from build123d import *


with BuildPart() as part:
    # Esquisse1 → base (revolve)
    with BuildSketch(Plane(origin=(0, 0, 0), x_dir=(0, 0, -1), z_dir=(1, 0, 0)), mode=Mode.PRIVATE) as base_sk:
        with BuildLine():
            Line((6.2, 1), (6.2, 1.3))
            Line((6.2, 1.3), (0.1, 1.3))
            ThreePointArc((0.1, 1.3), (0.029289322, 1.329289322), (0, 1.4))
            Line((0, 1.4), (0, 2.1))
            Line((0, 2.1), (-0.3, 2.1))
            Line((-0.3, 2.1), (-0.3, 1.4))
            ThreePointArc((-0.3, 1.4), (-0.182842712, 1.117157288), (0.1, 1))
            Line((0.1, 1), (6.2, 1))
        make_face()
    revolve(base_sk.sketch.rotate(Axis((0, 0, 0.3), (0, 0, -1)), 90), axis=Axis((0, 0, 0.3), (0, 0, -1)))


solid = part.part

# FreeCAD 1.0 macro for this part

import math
import FreeCAD as App
import Part
import Sketcher

doc = App.newDocument("Part")
body = doc.addObject("PartDesign::Body", "Body")

sketch1 = doc.addObject("Sketcher::SketchObject", "Sketch")
body.addObject(sketch1)
sketch1.AttachmentSupport = (doc.YZ_Plane, [""])
sketch1.MapMode = "FlatFace"
sketch1.addGeometry(Part.LineSegment(App.Vector(1, -6.2, 0), App.Vector(1.3, -6.2, 0)), False)
sketch1.addGeometry(Part.LineSegment(App.Vector(1.3, -6.2, 0), App.Vector(1.3, -0.1, 0)), False)
sketch1.addGeometry(Part.ArcOfCircle(Part.Circle(App.Vector(1.4, -0.1, 0), App.Vector(0, 0, 1), 0.1), math.radians(90), math.radians(180)), False)
sketch1.addGeometry(Part.LineSegment(App.Vector(1.4, 0, 0), App.Vector(2.1, 0, 0)), False)
sketch1.addGeometry(Part.LineSegment(App.Vector(2.1, 0, 0), App.Vector(2.1, 0.3, 0)), False)
sketch1.addGeometry(Part.LineSegment(App.Vector(2.1, 0.3, 0), App.Vector(1.4, 0.3, 0)), False)
sketch1.addGeometry(Part.ArcOfCircle(Part.Circle(App.Vector(1.4, -0.1, 0), App.Vector(0, 0, 1), 0.4), math.radians(90), math.radians(180)), False)
sketch1.addGeometry(Part.LineSegment(App.Vector(1, -0.1, 0), App.Vector(1, -6.2, 0)), False)
sketch1.addConstraint(Sketcher.Constraint("Coincident", 0, 2, 1, 1))
sketch1.addConstraint(Sketcher.Constraint("Tangent", 1, 2, 2, 2))
sketch1.addConstraint(Sketcher.Constraint("Tangent", 2, 1, 3, 1))
sketch1.addConstraint(Sketcher.Constraint("Coincident", 3, 2, 4, 1))
sketch1.addConstraint(Sketcher.Constraint("Coincident", 4, 2, 5, 1))
sketch1.addConstraint(Sketcher.Constraint("Tangent", 5, 2, 6, 1))
sketch1.addConstraint(Sketcher.Constraint("Tangent", 6, 2, 7, 1))
sketch1.addConstraint(Sketcher.Constraint("Coincident", 7, 2, 0, 1))
sketch1.addConstraint(Sketcher.Constraint("Horizontal", 0))
sketch1.addConstraint(Sketcher.Constraint("Vertical", 1))
sketch1.addConstraint(Sketcher.Constraint("Horizontal", 3))
sketch1.addConstraint(Sketcher.Constraint("Vertical", 4))
sketch1.addConstraint(Sketcher.Constraint("Horizontal", 5))
sketch1.addConstraint(Sketcher.Constraint("Vertical", 7))
sketch1.addConstraint(Sketcher.Constraint("Coincident", 6, 3, 2, 3))
sketch1.addConstraint(Sketcher.Constraint("PointOnObject", 2, 1, -1))
sketch1.addConstraint(Sketcher.Constraint("Radius", 2, 0.1))
sketch1.addConstraint(Sketcher.Constraint("Radius", 6, 0.4))
sketch1.addConstraint(Sketcher.Constraint("DistanceX", 3, 1, 3, 2, 0.7))
sketch1.addConstraint(Sketcher.Constraint("DistanceY", 1, 1, 1, 2, 6.1))
sketch1.addConstraint(Sketcher.Constraint("DistanceX", -1, 1, 6, 2, 1.0))
revolution = doc.addObject("PartDesign::Revolution", "Revolution")
body.addObject(revolution)
revolution.Profile = sketch1
revolution.ReferenceAxis = (sketch1, ["V_Axis"])
revolution.Angle = 360

doc.recompute()
